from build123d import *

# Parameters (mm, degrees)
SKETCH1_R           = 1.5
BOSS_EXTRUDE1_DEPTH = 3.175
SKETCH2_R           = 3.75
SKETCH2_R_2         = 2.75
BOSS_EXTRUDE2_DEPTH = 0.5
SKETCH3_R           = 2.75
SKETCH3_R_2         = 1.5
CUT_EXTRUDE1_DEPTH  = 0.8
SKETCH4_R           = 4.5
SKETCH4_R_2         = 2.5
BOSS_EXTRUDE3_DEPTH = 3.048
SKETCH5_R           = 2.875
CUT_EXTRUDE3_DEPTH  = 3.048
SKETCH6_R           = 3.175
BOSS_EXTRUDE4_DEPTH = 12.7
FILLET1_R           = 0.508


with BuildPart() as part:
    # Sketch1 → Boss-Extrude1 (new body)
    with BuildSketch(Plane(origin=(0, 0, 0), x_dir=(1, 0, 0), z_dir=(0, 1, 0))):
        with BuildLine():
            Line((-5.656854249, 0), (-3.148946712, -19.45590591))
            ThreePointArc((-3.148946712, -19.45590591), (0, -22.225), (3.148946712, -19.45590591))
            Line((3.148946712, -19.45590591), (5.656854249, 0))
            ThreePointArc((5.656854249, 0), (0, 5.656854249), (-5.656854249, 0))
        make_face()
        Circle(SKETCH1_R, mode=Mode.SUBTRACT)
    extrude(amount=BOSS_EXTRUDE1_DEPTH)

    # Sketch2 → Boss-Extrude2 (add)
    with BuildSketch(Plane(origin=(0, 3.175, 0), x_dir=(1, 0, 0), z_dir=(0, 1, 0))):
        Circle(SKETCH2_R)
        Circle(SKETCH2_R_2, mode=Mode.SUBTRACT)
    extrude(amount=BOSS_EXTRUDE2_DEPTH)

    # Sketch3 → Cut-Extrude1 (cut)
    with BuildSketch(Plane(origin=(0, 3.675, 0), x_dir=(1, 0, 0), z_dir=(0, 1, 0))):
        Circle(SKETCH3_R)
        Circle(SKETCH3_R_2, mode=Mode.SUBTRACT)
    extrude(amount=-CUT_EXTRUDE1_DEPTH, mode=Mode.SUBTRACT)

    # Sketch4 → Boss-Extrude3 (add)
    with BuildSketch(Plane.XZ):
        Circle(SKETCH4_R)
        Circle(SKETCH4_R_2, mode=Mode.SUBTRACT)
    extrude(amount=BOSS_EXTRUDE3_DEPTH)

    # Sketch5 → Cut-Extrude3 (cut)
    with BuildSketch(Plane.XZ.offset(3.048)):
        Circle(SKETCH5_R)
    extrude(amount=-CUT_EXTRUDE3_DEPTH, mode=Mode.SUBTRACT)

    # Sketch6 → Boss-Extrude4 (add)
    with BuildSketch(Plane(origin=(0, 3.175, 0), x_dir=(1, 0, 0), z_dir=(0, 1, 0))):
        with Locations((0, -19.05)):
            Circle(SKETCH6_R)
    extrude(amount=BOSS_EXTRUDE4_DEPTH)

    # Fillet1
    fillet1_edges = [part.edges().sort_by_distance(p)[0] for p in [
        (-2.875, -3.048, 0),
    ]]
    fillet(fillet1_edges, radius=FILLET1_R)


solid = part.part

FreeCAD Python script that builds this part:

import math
import FreeCAD as App
import Part
import Sketcher

V = App.Vector


def edges_at(feature, points):
    """Names of the edges that pass closest to the given points."""
    edges = feature.Shape.Edges
    near = lambda p: min(range(len(edges)), key=lambda i: edges[i].distToShape(Part.Vertex(*p))[0])
    return sorted({f"Edge{near(p) + 1}" for p in points})

doc = App.newDocument("Part")
body = doc.addObject("PartDesign::Body", "Body")

sketch1 = doc.addObject("Sketcher::SketchObject", "Sketch")
body.addObject(sketch1)
sketch1.AttachmentSupport = (doc.XZ_Plane, [""])
sketch1.MapMode = "FlatFace"
sketch1.addGeometry(Part.LineSegment(V(-5.656854, 0, 0), V(-3.148947, 19.455906, 0)), False)
sketch1.addGeometry(Part.ArcOfCircle(Part.Circle(V(0, 19.05, 0), V(0, 0, 1), 3.175), math.radians(7.345045), math.radians(172.654955)), False)
sketch1.addGeometry(Part.LineSegment(V(3.148947, 19.455906, 0), V(5.656854, 0, 0)), False)
sketch1.addGeometry(Part.ArcOfCircle(Part.Circle(V(0, 0, 0), V(0, 0, 1), 5.656854), math.radians(180), math.radians(360)), False)
sketch1.addGeometry(Part.Circle(V(0, 0, 0), V(0, 0, 1), 1.5), False)
sketch1.addConstraint(Sketcher.Constraint("Tangent", 0, 2, 1, 2))
sketch1.addConstraint(Sketcher.Constraint("Tangent", 1, 1, 2, 1))
sketch1.addConstraint(Sketcher.Constraint("Coincident", 2, 2, 3, 2))
sketch1.addConstraint(Sketcher.Constraint("Coincident", 3, 1, 0, 1))
sketch1.addConstraint(Sketcher.Constraint("Coincident", 3, 3, -1, 1))
sketch1.addConstraint(Sketcher.Constraint("Coincident", 4, 3, -1, 1))
sketch1.addConstraint(Sketcher.Constraint("Symmetric", 0, 2, 1, 1, -2))
sketch1.addConstraint(Sketcher.Constraint("PointOnObject", 2, 2, -1))
sketch1.addConstraint(Sketcher.Constraint("Diameter", 4, 3.0))
sketch1.addConstraint(Sketcher.Constraint("Radius", 1, 3.175))
sketch1.addConstraint(Sketcher.Constraint("DistanceY", -1, 1, 1, 3, 19.05))
sketch1.addConstraint(Sketcher.Constraint("Radius", 3, 5.656854))
pad1 = doc.addObject("PartDesign::Pad", "Pad")
body.addObject(pad1)
pad1.Profile = sketch1
pad1.Length = 3.175
pad1.Reversed = True

sketch2 = doc.addObject("Sketcher::SketchObject", "Sketch001")
body.addObject(sketch2)
sketch2.AttachmentSupport = (doc.XZ_Plane, [""])
sketch2.MapMode = "FlatFace"
sketch2.AttachmentOffset = App.Placement(V(0, 0, -3.175), App.Rotation())
sketch2.addGeometry(Part.Circle(V(0, 0, 0), V(0, 0, 1), 3.75), False)
sketch2.addGeometry(Part.Circle(V(0, 0, 0), V(0, 0, 1), 2.75), False)
sketch2.addConstraint(Sketcher.Constraint("Coincident", 0, 3, -1, 1))
sketch2.addConstraint(Sketcher.Constraint("Coincident", 1, 3, -1, 1))
sketch2.addConstraint(Sketcher.Constraint("Diameter", 0, 7.5))
sketch2.addConstraint(Sketcher.Constraint("Diameter", 1, 5.5))
pad2 = doc.addObject("PartDesign::Pad", "Pad001")
body.addObject(pad2)
pad2.Profile = sketch2
pad2.Length = 0.5
pad2.Reversed = True

sketch3 = doc.addObject("Sketcher::SketchObject", "Sketch002")
body.addObject(sketch3)
sketch3.AttachmentSupport = (doc.XZ_Plane, [""])
sketch3.MapMode = "FlatFace"
sketch3.AttachmentOffset = App.Placement(V(0, 0, -3.675), App.Rotation())
sketch3.addGeometry(Part.Circle(V(0, 0, 0), V(0, 0, 1), 2.75), False)
sketch3.addGeometry(Part.Circle(V(0, 0, 0), V(0, 0, 1), 1.5), False)
sketch3.addConstraint(Sketcher.Constraint("Coincident", 0, 3, -1, 1))
sketch3.addConstraint(Sketcher.Constraint("Coincident", 1, 3, -1, 1))
sketch3.addConstraint(Sketcher.Constraint("Diameter", 1, 3.0))
sketch3.addConstraint(Sketcher.Constraint("Diameter", 0, 5.5))
pocket1 = doc.addObject("PartDesign::Pocket", "Pocket")
body.addObject(pocket1)
pocket1.Profile = sketch3
pocket1.Length = 0.8
pocket1.Reversed = True

sketch4 = doc.addObject("Sketcher::SketchObject", "Sketch003")
body.addObject(sketch4)
sketch4.AttachmentSupport = (doc.XZ_Plane, [""])
sketch4.MapMode = "FlatFace"
sketch4.addGeometry(Part.Circle(V(0, 0, 0), V(0, 0, 1), 4.5), False)
sketch4.addGeometry(Part.Circle(V(0, 0, 0), V(0, 0, 1), 2.5), False)
sketch4.addConstraint(Sketcher.Constraint("Coincident", 0, 3, -1, 1))
sketch4.addConstraint(Sketcher.Constraint("Coincident", 1, 3, -1, 1))
sketch4.addConstraint(Sketcher.Constraint("Diameter", 0, 9.0))
sketch4.addConstraint(Sketcher.Constraint("Diameter", 1, 5.0))
pad3 = doc.addObject("PartDesign::Pad", "Pad002")
body.addObject(pad3)
pad3.Profile = sketch4
pad3.Length = 3.048

sketch5 = doc.addObject("Sketcher::SketchObject", "Sketch004")
body.addObject(sketch5)
sketch5.AttachmentSupport = (doc.XZ_Plane, [""])
sketch5.MapMode = "FlatFace"
sketch5.AttachmentOffset = App.Placement(V(0, 0, 3.048), App.Rotation())
sketch5.addGeometry(Part.Circle(V(0, 0, 0), V(0, 0, 1), 2.875), False)
sketch5.addConstraint(Sketcher.Constraint("Coincident", 0, 3, -1, 1))
sketch5.addConstraint(Sketcher.Constraint("Diameter", 0, 5.75))
pocket2 = doc.addObject("PartDesign::Pocket", "Pocket001")
body.addObject(pocket2)
pocket2.Profile = sketch5
pocket2.Length = 3.048

sketch6 = doc.addObject("Sketcher::SketchObject", "Sketch005")
body.addObject(sketch6)
sketch6.AttachmentSupport = (doc.XZ_Plane, [""])
sketch6.MapMode = "FlatFace"
sketch6.AttachmentOffset = App.Placement(V(0, 0, -3.175), App.Rotation())
sketch6.addGeometry(Part.Circle(V(0, 19.05, 0), V(0, 0, 1), 3.175), False)
sketch6.addConstraint(Sketcher.Constraint("PointOnObject", 0, 3, -2))
sketch6.addConstraint(Sketcher.Constraint("Diameter", 0, 6.35))
sketch6.addConstraint(Sketcher.Constraint("DistanceY", -1, 1, 0, 3, 19.05))
pad4 = doc.addObject("PartDesign::Pad", "Pad003")
body.addObject(pad4)
pad4.Profile = sketch6
pad4.Length = 12.7
pad4.Reversed = True
doc.recompute()

fillet = doc.addObject("PartDesign::Fillet", "Fillet")
body.addObject(fillet)
fillet.Base = (pad4, edges_at(pad4, [(-2.875, -3.048, 0)]))
fillet.Radius = 0.508

doc.recompute()
